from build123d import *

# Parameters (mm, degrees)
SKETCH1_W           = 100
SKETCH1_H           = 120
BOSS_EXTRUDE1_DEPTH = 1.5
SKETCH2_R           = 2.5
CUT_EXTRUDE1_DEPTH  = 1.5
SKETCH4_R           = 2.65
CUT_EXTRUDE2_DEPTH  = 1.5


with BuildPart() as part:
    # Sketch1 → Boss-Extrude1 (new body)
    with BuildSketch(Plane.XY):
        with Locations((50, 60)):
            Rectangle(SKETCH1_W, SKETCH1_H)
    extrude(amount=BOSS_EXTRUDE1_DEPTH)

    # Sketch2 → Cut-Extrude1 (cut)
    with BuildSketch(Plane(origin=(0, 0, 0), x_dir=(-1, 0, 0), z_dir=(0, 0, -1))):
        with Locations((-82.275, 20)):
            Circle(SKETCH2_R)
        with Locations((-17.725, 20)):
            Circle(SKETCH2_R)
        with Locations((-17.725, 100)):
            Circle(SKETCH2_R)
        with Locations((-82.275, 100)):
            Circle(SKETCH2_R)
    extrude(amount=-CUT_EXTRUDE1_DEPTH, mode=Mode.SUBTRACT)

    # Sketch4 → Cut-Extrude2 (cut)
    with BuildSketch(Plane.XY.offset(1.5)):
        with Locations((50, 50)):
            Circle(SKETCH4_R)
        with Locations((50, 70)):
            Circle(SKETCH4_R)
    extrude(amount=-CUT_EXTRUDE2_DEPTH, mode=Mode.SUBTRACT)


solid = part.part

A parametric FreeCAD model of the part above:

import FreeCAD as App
import Part
import Sketcher

V = App.Vector

doc = App.newDocument("Part")
body = doc.addObject("PartDesign::Body", "Body")

sketch1 = body.newObject("Sketcher::SketchObject", "Sketch")
sketch1.AttachmentSupport = (doc.getObject("XY_Plane"), [""])
sketch1.MapMode = "FlatFace"
sketch1.addGeometry(Part.LineSegment(V(0, 120, 0), V(0, 0, 0)), False)
sketch1.addGeometry(Part.LineSegment(V(0, 0, 0), V(100, 0, 0)), False)
sketch1.addGeometry(Part.LineSegment(V(100, 0, 0), V(100, 120, 0)), False)
sketch1.addGeometry(Part.LineSegment(V(100, 120, 0), V(0, 120, 0)), False)
sketch1.addConstraint(Sketcher.Constraint("Coincident", 0, 2, 1, 1))
sketch1.addConstraint(Sketcher.Constraint("Coincident", 1, 2, 2, 1))
sketch1.addConstraint(Sketcher.Constraint("Coincident", 2, 2, 3, 1))
sketch1.addConstraint(Sketcher.Constraint("Coincident", 3, 2, 0, 1))
sketch1.addConstraint(Sketcher.Constraint("Vertical", 0))
sketch1.addConstraint(Sketcher.Constraint("Horizontal", 1))
sketch1.addConstraint(Sketcher.Constraint("Vertical", 2))
sketch1.addConstraint(Sketcher.Constraint("Horizontal", 3))
sketch1.addConstraint(Sketcher.Constraint("Coincident", 0, 2, -1, 1))
sketch1.addConstraint(Sketcher.Constraint("DistanceX", 1, 1, 1, 2, 100.0))
sketch1.addConstraint(Sketcher.Constraint("DistanceY", 0, 2, 0, 1, 120.0))
pad1 = body.newObject("PartDesign::Pad", "Pad")
pad1.Profile = sketch1
pad1.Length = 1.5

sketch2 = body.newObject("Sketcher::SketchObject", "Sketch001")
sketch2.AttachmentSupport = (doc.getObject("XY_Plane"), [""])
sketch2.MapMode = "FlatFace"
sketch2.addGeometry(Part.Circle(V(82.275, 20, 0), V(0, 0, 1), 2.5), False)
sketch2.addGeometry(Part.Circle(V(17.725, 20, 0), V(0, 0, 1), 2.5), False)
sketch2.addGeometry(Part.Circle(V(17.725, 100, 0), V(0, 0, 1), 2.5), False)
sketch2.addGeometry(Part.Circle(V(82.275, 100, 0), V(0, 0, 1), 2.5), False)
sketch2.addConstraint(Sketcher.Constraint("Equal", 0, 1))
sketch2.addConstraint(Sketcher.Constraint("Equal", 1, 2))
sketch2.addConstraint(Sketcher.Constraint("Equal", 2, 3))
sketch2.addConstraint(Sketcher.Constraint("Horizontal", 0, 3, 1, 3))
sketch2.addConstraint(Sketcher.Constraint("Horizontal", 2, 3, 3, 3))
sketch2.addConstraint(Sketcher.Constraint("Vertical", 1, 3, 2, 3))
sketch2.addConstraint(Sketcher.Constraint("Vertical", 0, 3, 3, 3))
sketch2.addConstraint(Sketcher.Constraint("Diameter", 0, 5.0))
sketch2.addConstraint(Sketcher.Constraint("DistanceY", -1, 1, 0, 3, 20.0))
sketch2.addConstraint(Sketcher.Constraint("DistanceY", -1, 1, 2, 3, 100.0))
sketch2.addConstraint(Sketcher.Constraint("DistanceX", 1, 3, 0, 3, 64.55))
sketch2.addConstraint(Sketcher.Constraint("DistanceX", -1, 1, 0, 3, 82.275))
pocket1 = body.newObject("PartDesign::Pocket", "Pocket")
pocket1.Profile = sketch2
pocket1.Length = 1.5
pocket1.Reversed = True

sketch3 = body.newObject("Sketcher::SketchObject", "Sketch002")
sketch3.AttachmentSupport = (doc.getObject("XY_Plane"), [""])
sketch3.MapMode = "FlatFace"
sketch3.AttachmentOffset = App.Placement(V(0, 0, 1.5), App.Rotation())
sketch3.addGeometry(Part.Circle(V(50, 50, 0), V(0, 0, 1), 2.65), False)
sketch3.addGeometry(Part.Circle(V(50, 70, 0), V(0, 0, 1), 2.65), False)
sketch3.addConstraint(Sketcher.Constraint("Equal", 0, 1))
sketch3.addConstraint(Sketcher.Constraint("Vertical", 0, 3, 1, 3))
sketch3.addConstraint(Sketcher.Constraint("Diameter", 0, 5.3))
sketch3.addConstraint(Sketcher.Constraint("DistanceX", -1, 1, 0, 3, 50.0))
sketch3.addConstraint(Sketcher.Constraint("DistanceY", -1, 1, 0, 3, 50.0))
sketch3.addConstraint(Sketcher.Constraint("DistanceY", -1, 1, 1, 3, 70.0))
pocket2 = body.newObject("PartDesign::Pocket", "Pocket001")
pocket2.Profile = sketch3
pocket2.Length = 1.5

doc.recompute()
